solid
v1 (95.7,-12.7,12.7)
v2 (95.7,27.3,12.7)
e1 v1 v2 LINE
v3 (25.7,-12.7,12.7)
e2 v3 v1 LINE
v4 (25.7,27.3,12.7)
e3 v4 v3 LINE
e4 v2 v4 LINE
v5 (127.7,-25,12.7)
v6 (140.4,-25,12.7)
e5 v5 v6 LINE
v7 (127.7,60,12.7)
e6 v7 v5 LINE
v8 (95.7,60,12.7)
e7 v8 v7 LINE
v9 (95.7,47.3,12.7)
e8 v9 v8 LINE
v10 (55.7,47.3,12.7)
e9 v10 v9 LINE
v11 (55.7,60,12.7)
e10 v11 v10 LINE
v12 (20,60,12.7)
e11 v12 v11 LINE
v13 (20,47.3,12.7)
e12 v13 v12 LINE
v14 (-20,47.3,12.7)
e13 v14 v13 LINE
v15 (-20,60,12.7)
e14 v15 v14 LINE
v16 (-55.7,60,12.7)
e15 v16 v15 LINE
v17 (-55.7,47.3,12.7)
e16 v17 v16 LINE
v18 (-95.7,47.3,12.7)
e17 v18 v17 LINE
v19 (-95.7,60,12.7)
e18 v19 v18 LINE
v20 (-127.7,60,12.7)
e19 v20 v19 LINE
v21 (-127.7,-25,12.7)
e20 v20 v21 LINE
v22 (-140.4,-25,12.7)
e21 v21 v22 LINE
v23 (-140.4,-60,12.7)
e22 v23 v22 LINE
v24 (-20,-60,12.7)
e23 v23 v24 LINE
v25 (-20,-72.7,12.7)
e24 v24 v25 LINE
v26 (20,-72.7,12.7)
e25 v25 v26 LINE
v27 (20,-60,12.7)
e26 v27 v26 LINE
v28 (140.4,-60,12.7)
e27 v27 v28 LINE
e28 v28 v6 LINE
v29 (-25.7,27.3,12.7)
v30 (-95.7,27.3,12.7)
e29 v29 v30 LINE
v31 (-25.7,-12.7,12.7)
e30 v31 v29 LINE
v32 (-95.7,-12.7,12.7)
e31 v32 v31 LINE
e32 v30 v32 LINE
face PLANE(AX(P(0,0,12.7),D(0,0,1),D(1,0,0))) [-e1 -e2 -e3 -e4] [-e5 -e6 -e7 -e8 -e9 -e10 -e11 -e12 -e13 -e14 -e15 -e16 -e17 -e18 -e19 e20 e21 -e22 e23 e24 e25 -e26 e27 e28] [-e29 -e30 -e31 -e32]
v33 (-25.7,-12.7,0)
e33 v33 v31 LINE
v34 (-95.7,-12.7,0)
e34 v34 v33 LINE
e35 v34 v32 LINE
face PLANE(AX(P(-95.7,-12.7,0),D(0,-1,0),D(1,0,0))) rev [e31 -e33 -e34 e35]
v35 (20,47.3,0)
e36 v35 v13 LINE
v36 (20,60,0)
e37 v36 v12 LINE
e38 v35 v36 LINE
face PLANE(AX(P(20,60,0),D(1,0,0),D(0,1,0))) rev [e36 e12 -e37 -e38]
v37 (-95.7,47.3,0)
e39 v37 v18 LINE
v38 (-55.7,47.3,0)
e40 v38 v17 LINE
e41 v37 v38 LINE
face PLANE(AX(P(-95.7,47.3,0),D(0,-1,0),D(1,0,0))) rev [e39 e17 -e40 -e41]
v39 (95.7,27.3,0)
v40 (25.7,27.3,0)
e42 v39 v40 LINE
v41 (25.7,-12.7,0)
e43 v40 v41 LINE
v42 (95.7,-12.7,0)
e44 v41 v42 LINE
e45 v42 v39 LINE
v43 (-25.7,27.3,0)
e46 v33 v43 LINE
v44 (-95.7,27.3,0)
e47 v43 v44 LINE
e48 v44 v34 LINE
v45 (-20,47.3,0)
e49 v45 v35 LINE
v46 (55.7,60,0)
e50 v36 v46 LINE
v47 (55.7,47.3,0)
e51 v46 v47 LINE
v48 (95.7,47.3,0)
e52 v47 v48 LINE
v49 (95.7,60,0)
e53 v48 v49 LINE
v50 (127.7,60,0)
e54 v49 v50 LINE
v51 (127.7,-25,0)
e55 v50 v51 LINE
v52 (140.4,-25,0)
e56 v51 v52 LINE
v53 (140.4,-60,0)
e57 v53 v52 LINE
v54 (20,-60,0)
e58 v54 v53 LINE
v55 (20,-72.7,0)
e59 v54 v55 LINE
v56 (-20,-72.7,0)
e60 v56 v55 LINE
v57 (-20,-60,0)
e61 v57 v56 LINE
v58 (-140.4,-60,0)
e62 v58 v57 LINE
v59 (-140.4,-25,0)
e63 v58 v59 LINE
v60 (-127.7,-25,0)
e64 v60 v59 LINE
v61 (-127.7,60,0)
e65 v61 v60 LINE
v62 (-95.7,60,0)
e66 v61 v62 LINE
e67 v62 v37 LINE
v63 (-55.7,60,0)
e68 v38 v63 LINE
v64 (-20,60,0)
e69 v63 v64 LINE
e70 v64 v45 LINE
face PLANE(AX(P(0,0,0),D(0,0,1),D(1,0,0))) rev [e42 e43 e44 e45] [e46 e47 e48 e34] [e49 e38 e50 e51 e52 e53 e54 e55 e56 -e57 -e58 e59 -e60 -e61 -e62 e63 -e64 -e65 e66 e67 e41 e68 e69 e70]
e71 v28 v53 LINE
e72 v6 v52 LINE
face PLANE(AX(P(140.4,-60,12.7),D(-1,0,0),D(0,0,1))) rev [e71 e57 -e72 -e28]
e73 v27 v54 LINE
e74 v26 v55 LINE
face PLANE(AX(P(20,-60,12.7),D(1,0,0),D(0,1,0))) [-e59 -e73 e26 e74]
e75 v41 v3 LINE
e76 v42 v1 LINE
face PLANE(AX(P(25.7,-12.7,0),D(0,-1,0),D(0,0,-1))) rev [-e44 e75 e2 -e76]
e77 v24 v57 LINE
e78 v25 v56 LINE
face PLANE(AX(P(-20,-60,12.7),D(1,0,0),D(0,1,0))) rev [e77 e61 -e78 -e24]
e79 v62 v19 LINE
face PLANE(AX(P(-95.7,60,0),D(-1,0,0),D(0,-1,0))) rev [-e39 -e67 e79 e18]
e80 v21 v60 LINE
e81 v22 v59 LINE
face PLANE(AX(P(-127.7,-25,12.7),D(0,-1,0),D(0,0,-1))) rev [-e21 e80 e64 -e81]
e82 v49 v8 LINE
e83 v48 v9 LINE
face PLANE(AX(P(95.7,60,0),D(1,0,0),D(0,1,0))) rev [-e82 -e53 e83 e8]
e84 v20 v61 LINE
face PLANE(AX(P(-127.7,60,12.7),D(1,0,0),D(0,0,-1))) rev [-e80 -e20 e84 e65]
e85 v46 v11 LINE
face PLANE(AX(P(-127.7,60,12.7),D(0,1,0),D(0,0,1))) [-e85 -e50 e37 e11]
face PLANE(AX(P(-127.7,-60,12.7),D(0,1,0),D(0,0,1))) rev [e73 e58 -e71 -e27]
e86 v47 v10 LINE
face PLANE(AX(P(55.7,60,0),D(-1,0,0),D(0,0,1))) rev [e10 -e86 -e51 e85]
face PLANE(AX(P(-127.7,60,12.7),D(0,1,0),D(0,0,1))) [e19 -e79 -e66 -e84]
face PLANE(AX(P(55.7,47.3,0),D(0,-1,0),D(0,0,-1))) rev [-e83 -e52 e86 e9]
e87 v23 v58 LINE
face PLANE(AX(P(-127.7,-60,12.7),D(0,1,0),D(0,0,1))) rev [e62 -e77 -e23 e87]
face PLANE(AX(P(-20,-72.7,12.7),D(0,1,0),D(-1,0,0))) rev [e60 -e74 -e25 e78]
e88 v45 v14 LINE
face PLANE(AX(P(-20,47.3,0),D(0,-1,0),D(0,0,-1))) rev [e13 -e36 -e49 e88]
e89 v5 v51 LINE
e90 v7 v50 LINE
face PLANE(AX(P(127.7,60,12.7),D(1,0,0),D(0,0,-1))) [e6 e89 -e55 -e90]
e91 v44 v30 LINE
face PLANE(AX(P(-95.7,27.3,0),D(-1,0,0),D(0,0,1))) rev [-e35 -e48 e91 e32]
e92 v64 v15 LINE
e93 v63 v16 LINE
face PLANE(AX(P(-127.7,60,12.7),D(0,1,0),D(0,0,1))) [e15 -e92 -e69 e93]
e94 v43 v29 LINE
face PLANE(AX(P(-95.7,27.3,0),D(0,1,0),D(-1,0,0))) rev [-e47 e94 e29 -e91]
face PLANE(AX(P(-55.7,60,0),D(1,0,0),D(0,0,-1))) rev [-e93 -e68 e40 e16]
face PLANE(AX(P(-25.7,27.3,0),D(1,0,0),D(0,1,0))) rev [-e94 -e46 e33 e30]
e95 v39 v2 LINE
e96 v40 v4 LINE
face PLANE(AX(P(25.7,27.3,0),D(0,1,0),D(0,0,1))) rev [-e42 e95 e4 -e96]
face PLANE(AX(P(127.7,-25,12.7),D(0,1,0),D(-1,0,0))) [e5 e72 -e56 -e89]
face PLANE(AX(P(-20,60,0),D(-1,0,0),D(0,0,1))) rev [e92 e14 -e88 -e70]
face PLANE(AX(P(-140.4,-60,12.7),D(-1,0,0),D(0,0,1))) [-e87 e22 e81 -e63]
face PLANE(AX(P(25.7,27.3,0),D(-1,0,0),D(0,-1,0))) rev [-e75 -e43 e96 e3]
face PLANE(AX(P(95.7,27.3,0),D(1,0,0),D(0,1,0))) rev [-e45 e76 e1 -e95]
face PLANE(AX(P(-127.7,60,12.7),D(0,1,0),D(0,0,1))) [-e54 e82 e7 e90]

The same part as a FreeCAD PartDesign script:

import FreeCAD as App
import Part
import Sketcher
from FreeCAD import Vector
Q = App.Units.Quantity

doc = App.newDocument("Part")
body = doc.addObject("PartDesign::Body", "Body")

# Sketch on XY plane
sketch1 = doc.addObject("Sketcher::SketchObject", "Sketch")
body.addObject(sketch1)
sketch1.AttachmentSupport = (doc.XY_Plane, [""])
sketch1.MapMode = "FlatFace"
sketch1.addGeometry([
    Part.LineSegment(Vector(128, 60, 0), Vector(-128, 60, 0)),  # 0
    Part.LineSegment(Vector(-128, 60, 0), Vector(-128, -25, 0)),  # 1
    Part.LineSegment(Vector(-128, -25, 0), Vector(-140, -25, 0)),  # 2
    Part.LineSegment(Vector(-140, -25, 0), Vector(-140, -60, 0)),  # 3
    Part.LineSegment(Vector(-140, -60, 0), Vector(-20, -60, 0)),  # 4
    Part.LineSegment(Vector(-20, -60, 0), Vector(-20, -73, 0)),  # 5
    Part.LineSegment(Vector(-20, -73, 0), Vector(20, -73, 0)),  # 6
    Part.LineSegment(Vector(20, -73, 0), Vector(20, -60, 0)),  # 7
    Part.LineSegment(Vector(20, -60, 0), Vector(140, -60, 0)),  # 8
    Part.LineSegment(Vector(140, -60, 0), Vector(140, -25, 0)),  # 9
    Part.LineSegment(Vector(140, -25, 0), Vector(128, -25, 0)),  # 10
    Part.LineSegment(Vector(128, -25, 0), Vector(128, 60, 0)),  # 11
], False)
sketch1.addConstraint([
    Sketcher.Constraint("Coincident", 0, 2, 1, 1),
    Sketcher.Constraint("Coincident", 1, 2, 2, 1),
    Sketcher.Constraint("Coincident", 2, 2, 3, 1),
    Sketcher.Constraint("Coincident", 3, 2, 4, 1),
    Sketcher.Constraint("Coincident", 4, 2, 5, 1),
    Sketcher.Constraint("Coincident", 5, 2, 6, 1),
    Sketcher.Constraint("Coincident", 6, 2, 7, 1),
    Sketcher.Constraint("Coincident", 7, 2, 8, 1),
    Sketcher.Constraint("Coincident", 8, 2, 9, 1),
    Sketcher.Constraint("Coincident", 9, 2, 10, 1),
    Sketcher.Constraint("Coincident", 10, 2, 11, 1),
    Sketcher.Constraint("Coincident", 11, 2, 0, 1),
    Sketcher.Constraint("Horizontal", 0),
    Sketcher.Constraint("Vertical", 1),
    Sketcher.Constraint("Horizontal", 2),
    Sketcher.Constraint("Vertical", 3),
    Sketcher.Constraint("Horizontal", 4),
    Sketcher.Constraint("Vertical", 5),
    Sketcher.Constraint("Horizontal", 6),
    Sketcher.Constraint("Vertical", 7),
    Sketcher.Constraint("Horizontal", 8),
    Sketcher.Constraint("Vertical", 9),
    Sketcher.Constraint("Horizontal", 10),
    Sketcher.Constraint("Vertical", 11),
    Sketcher.Constraint("Symmetric", 4, 2, 7, 2, -2),
    Sketcher.Constraint("Symmetric", 2, 2, 9, 2, -2),
    Sketcher.Constraint("Equal", 2, 10),
    Sketcher.Constraint("Equal", 10, 5),
    Sketcher.Constraint("DistanceX", 6, 1, 6, 2, Q("40 mm")),
    Sketcher.Constraint("DistanceY", 1, 2, 1, 1, Q("85 mm")),
    Sketcher.Constraint("DistanceY", 3, 2, 3, 1, Q("35 mm")),
    Sketcher.Constraint("DistanceX", 0, 2, 0, 1, Q("255.4 mm")),
    Sketcher.Constraint("DistanceX", 2, 2, 2, 1, Q("12.7 mm")),
    Sketcher.Constraint("DistanceY", -1, 1, 0, 2, Q("60 mm")),
])
pad1 = doc.addObject("PartDesign::Pad", "Pad")
body.addObject(pad1)
pad1.Profile = sketch1
pad1.Length = 12.7

# Sketch on XY plane
sketch2 = doc.addObject("Sketcher::SketchObject", "Sketch001")
body.addObject(sketch2)
sketch2.AttachmentSupport = (doc.XY_Plane, [""])
sketch2.MapMode = "FlatFace"
sketch2.AttachmentOffset = App.Placement(Vector(0, 0, 12.7), App.Rotation())
sketch2.addGeometry([
    Part.LineSegment(Vector(-20, 60, 0), Vector(-20, 47, 0)),
    Part.LineSegment(Vector(-20, 47, 0), Vector(20, 47, 0)),
    Part.LineSegment(Vector(20, 47, 0), Vector(20, 60, 0)),
    Part.LineSegment(Vector(20, 60, 0), Vector(-20, 60, 0)),
], False)
sketch2.addConstraint([
    Sketcher.Constraint("Coincident", 0, 2, 1, 1),
    Sketcher.Constraint("Coincident", 1, 2, 2, 1),
    Sketcher.Constraint("Coincident", 2, 2, 3, 1),
    Sketcher.Constraint("Coincident", 3, 2, 0, 1),
    Sketcher.Constraint("Vertical", 0),
    Sketcher.Constraint("Horizontal", 1),
    Sketcher.Constraint("Vertical", 2),
    Sketcher.Constraint("Horizontal", 3),
    Sketcher.Constraint("DistanceX", 1, 1, 1, 2, Q("40 mm")),
    Sketcher.Constraint("DistanceY", 0, 2, 0, 1, Q("12.7 mm")),
    Sketcher.Constraint("DistanceX", 0, 2, -1, 1, Q("20 mm")),
    Sketcher.Constraint("DistanceY", -1, 1, 2, 2, Q("60 mm")),
])
pocket1 = doc.addObject("PartDesign::Pocket", "Pocket")
body.addObject(pocket1)
pocket1.Profile = sketch2
pocket1.Length = 12.7

# Sketch on XY plane
sketch3 = doc.addObject("Sketcher::SketchObject", "Sketch002")
body.addObject(sketch3)
sketch3.AttachmentSupport = (doc.XY_Plane, [""])
sketch3.MapMode = "FlatFace"
sketch3.AttachmentOffset = App.Placement(Vector(0, 0, 12.7), App.Rotation())
sketch3.addGeometry([
    Part.LineSegment(Vector(-96, 60, 0), Vector(-96, 47, 0)),  # 0
    Part.LineSegment(Vector(-96, 47, 0), Vector(-56, 47, 0)),  # 1
    Part.LineSegment(Vector(-56, 47, 0), Vector(-56, 60, 0)),  # 2
    Part.LineSegment(Vector(-56, 60, 0), Vector(-96, 60, 0)),  # 3
    Part.LineSegment(Vector(56, 60, 0), Vector(56, 47, 0)),  # 4
    Part.LineSegment(Vector(56, 47, 0), Vector(96, 47, 0)),  # 5
    Part.LineSegment(Vector(96, 47, 0), Vector(96, 60, 0)),  # 6
    Part.LineSegment(Vector(96, 60, 0), Vector(56, 60, 0)),  # 7
    Part.LineSegment(Vector(-96, 27, 0), Vector(-96, -13, 0)),  # 8
    Part.LineSegment(Vector(-96, -13, 0), Vector(-26, -13, 0)),  # 9
    Part.LineSegment(Vector(-26, -13, 0), Vector(-26, 27, 0)),  # 10
    Part.LineSegment(Vector(-26, 27, 0), Vector(-96, 27, 0)),  # 11
    Part.LineSegment(Vector(26, 27, 0), Vector(26, -13, 0)),  # 12
    Part.LineSegment(Vector(26, -13, 0), Vector(96, -13, 0)),  # 13
    Part.LineSegment(Vector(96, -13, 0), Vector(96, 27, 0)),  # 14
    Part.LineSegment(Vector(96, 27, 0), Vector(26, 27, 0)),  # 15
], False)
sketch3.addConstraint([
    Sketcher.Constraint("Coincident", 0, 2, 1, 1),
    Sketcher.Constraint("Coincident", 1, 2, 2, 1),
    Sketcher.Constraint("Coincident", 2, 2, 3, 1),
    Sketcher.Constraint("Coincident", 3, 2, 0, 1),
    Sketcher.Constraint("Coincident", 4, 2, 5, 1),
    Sketcher.Constraint("Coincident", 5, 2, 6, 1),
    Sketcher.Constraint("Coincident", 6, 2, 7, 1),
    Sketcher.Constraint("Coincident", 7, 2, 4, 1),
    Sketcher.Constraint("Coincident", 8, 2, 9, 1),
    Sketcher.Constraint("Coincident", 9, 2, 10, 1),
    Sketcher.Constraint("Coincident", 10, 2, 11, 1),
    Sketcher.Constraint("Coincident", 11, 2, 8, 1),
    Sketcher.Constraint("Coincident", 12, 2, 13, 1),
    Sketcher.Constraint("Coincident", 13, 2, 14, 1),
    Sketcher.Constraint("Coincident", 14, 2, 15, 1),
    Sketcher.Constraint("Coincident", 15, 2, 12, 1),
    Sketcher.Constraint("Vertical", 0),
    Sketcher.Constraint("Horizontal", 1),
    Sketcher.Constraint("Vertical", 2),
    Sketcher.Constraint("Horizontal", 3),
    Sketcher.Constraint("Vertical", 4),
    Sketcher.Constraint("Horizontal", 5),
    Sketcher.Constraint("Vertical", 6),
    Sketcher.Constraint("Horizontal", 7),
    Sketcher.Constraint("Vertical", 8),
    Sketcher.Constraint("Horizontal", 9),
    Sketcher.Constraint("Vertical", 10),
    Sketcher.Constraint("Horizontal", 11),
    Sketcher.Constraint("Vertical", 12),
    Sketcher.Constraint("Horizontal", 13),
    Sketcher.Constraint("Vertical", 14),
    Sketcher.Constraint("Horizontal", 15),
    Sketcher.Constraint("Symmetric", 1, 2, 4, 2, -2),
    Sketcher.Constraint("Symmetric", 3, 2, 6, 2, -2),
    Sketcher.Constraint("Symmetric", 9, 2, 12, 2, -2),
    Sketcher.Constraint("Symmetric", 11, 2, 14, 2, -2),
    Sketcher.Constraint("Vertical", 3, 2, 8, 2),
    Sketcher.Constraint("Equal", 7, 8),
    Sketcher.Constraint("DistanceX", 1, 1, 1, 2, Q("40 mm")),
    Sketcher.Constraint("DistanceX", 9, 1, 9, 2, Q("70 mm")),
    Sketcher.Constraint("DistanceY", 0, 2, 0, 1, Q("12.7 mm")),
    Sketcher.Constraint("DistanceY", -1, 1, 2, 2, Q("60 mm")),
    Sketcher.Constraint("DistanceY", 8, 2, 0, 2, Q("60 mm")),
    Sketcher.Constraint("DistanceX", 0, 2, -1, 1, Q("95.7 mm")),
])
pocket2 = doc.addObject("PartDesign::Pocket", "Pocket001")
body.addObject(pocket2)
pocket2.Profile = sketch3
pocket2.Length = 12.7

doc.recompute()
